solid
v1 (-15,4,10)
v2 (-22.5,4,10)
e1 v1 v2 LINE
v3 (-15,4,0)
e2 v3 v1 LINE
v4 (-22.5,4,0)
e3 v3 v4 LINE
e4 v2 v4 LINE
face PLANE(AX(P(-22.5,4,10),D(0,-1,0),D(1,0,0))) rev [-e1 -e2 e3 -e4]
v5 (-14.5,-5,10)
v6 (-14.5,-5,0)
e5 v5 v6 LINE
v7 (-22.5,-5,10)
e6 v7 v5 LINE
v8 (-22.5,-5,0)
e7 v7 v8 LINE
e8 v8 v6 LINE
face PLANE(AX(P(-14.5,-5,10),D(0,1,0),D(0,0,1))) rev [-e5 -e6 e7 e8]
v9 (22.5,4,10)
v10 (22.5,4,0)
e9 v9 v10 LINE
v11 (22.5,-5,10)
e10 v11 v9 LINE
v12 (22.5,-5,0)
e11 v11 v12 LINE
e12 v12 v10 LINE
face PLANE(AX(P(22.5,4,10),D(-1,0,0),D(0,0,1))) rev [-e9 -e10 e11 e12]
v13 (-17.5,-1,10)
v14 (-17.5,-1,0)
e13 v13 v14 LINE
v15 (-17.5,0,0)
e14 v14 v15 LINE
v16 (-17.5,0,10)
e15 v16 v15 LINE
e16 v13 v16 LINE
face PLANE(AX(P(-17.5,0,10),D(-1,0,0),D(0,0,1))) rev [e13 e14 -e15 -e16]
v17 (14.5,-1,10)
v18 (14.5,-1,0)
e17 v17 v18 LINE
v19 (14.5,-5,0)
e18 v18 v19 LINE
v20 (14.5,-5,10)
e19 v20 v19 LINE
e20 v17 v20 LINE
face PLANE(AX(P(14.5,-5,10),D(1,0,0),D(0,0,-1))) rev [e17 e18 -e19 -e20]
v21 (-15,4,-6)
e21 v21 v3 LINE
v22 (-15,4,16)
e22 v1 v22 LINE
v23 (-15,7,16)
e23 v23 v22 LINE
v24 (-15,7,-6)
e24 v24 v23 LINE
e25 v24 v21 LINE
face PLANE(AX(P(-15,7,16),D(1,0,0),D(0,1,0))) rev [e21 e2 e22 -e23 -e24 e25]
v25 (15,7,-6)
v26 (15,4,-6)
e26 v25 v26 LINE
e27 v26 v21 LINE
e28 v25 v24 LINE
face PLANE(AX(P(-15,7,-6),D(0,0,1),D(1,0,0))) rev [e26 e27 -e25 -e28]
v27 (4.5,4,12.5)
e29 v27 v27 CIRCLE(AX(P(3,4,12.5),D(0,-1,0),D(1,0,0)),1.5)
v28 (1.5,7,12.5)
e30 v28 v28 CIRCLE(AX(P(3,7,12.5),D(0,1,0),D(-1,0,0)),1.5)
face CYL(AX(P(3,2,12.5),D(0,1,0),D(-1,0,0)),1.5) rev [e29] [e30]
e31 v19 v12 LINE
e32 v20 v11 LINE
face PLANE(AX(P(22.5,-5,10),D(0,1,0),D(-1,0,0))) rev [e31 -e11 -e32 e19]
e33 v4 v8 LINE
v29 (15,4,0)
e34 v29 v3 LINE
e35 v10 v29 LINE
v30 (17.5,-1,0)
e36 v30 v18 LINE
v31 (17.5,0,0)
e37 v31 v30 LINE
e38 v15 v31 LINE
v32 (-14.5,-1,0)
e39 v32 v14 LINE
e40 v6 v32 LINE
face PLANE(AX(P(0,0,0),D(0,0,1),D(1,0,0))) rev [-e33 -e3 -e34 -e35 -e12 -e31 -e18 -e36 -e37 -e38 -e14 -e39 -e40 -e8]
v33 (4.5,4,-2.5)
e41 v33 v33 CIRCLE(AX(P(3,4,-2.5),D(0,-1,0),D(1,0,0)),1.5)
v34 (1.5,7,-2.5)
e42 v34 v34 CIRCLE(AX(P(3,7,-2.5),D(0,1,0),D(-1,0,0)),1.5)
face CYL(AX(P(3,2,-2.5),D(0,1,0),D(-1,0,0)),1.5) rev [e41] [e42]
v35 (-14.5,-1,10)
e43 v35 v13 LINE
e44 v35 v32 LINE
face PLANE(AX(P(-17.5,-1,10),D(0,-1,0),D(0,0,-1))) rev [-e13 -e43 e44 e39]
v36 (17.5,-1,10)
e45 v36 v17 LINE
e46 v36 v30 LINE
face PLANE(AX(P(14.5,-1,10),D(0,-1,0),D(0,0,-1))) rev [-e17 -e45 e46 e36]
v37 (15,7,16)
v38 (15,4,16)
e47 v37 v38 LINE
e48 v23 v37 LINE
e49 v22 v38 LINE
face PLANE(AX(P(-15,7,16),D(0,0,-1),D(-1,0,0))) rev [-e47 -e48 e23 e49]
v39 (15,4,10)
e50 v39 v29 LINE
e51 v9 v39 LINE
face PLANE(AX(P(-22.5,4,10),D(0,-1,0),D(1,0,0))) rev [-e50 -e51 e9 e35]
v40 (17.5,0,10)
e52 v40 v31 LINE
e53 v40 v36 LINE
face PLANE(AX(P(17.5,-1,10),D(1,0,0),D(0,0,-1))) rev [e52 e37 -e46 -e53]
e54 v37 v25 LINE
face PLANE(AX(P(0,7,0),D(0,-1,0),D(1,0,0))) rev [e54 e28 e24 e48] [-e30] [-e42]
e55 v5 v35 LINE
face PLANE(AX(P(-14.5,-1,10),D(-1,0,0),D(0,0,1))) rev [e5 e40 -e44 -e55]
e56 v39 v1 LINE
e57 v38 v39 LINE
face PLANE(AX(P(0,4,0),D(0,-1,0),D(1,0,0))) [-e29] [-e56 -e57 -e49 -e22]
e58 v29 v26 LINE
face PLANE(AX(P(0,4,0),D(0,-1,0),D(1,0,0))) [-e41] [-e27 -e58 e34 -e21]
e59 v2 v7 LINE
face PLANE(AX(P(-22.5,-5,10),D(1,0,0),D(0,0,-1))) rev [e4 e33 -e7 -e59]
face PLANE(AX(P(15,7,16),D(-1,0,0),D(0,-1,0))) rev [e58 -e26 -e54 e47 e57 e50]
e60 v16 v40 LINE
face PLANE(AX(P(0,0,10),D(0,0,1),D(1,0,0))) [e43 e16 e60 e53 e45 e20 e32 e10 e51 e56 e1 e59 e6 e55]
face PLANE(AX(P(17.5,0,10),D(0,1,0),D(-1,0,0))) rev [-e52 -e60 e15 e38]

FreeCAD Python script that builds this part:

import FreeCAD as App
import Part
import Sketcher

V = App.Vector
Q = App.Units.Quantity

doc = App.newDocument("Part")
body = doc.addObject("PartDesign::Body", "Body")

# Sketch on XY plane
sketch1 = doc.addObject("Sketcher::SketchObject", "Sketch")
body.addObject(sketch1)
sketch1.AttachmentSupport = (doc.XY_Plane, [""])
sketch1.MapMode = "FlatFace"
sketch1.addGeometry([
    Part.LineSegment(V(-17.5, -1, 0), V(-17.5, 0, 0)),  # 0
    Part.LineSegment(V(-17.5, 0, 0), V(17.5, 0, 0)),  # 1
    Part.LineSegment(V(17.5, 0, 0), V(17.5, -1, 0)),  # 2
    Part.LineSegment(V(17.5, -1, 0), V(14.5, -1, 0)),  # 3
    Part.LineSegment(V(14.5, -1, 0), V(14.5, -5, 0)),  # 4
    Part.LineSegment(V(14.5, -5, 0), V(22.5, -5, 0)),  # 5
    Part.LineSegment(V(22.5, -5, 0), V(22.5, 4, 0)),  # 6
    Part.LineSegment(V(22.5, 4, 0), V(-22.5, 4, 0)),  # 7
    Part.LineSegment(V(-22.5, 4, 0), V(-22.5, -5, 0)),  # 8
    Part.LineSegment(V(-22.5, -5, 0), V(-14.5, -5, 0)),  # 9
    Part.LineSegment(V(-14.5, -5, 0), V(-14.5, -1, 0)),  # 10
    Part.LineSegment(V(-14.5, -1, 0), V(-17.5, -1, 0)),  # 11
], False)
sketch1.addConstraint([
    Sketcher.Constraint("Coincident", 0, 2, 1, 1),
    Sketcher.Constraint("Coincident", 1, 2, 2, 1),
    Sketcher.Constraint("Coincident", 2, 2, 3, 1),
    Sketcher.Constraint("Coincident", 3, 2, 4, 1),
    Sketcher.Constraint("Coincident", 4, 2, 5, 1),
    Sketcher.Constraint("Coincident", 5, 2, 6, 1),
    Sketcher.Constraint("Coincident", 6, 2, 7, 1),
    Sketcher.Constraint("Coincident", 7, 2, 8, 1),
    Sketcher.Constraint("Coincident", 8, 2, 9, 1),
    Sketcher.Constraint("Coincident", 9, 2, 10, 1),
    Sketcher.Constraint("Coincident", 10, 2, 11, 1),
    Sketcher.Constraint("Coincident", 11, 2, 0, 1),
    Sketcher.Constraint("Vertical", 0),
    Sketcher.Constraint("Horizontal", 1),
    Sketcher.Constraint("Vertical", 2),
    Sketcher.Constraint("Horizontal", 3),
    Sketcher.Constraint("Vertical", 4),
    Sketcher.Constraint("Horizontal", 5),
    Sketcher.Constraint("Vertical", 6),
    Sketcher.Constraint("Horizontal", 7),
    Sketcher.Constraint("Vertical", 8),
    Sketcher.Constraint("Horizontal", 9),
    Sketcher.Constraint("Vertical", 10),
    Sketcher.Constraint("Horizontal", 11),
    Sketcher.Constraint("Symmetric", 0, 2, 1, 2, -1, 1),
    Sketcher.Constraint("Symmetric", 5, 2, 8, 2, -2),
    Sketcher.Constraint("Symmetric", 3, 2, 10, 2, -2),
    Sketcher.Constraint("DistanceX", 1, 1, 1, 2, Q("35 mm")),
    Sketcher.Constraint("DistanceX", 3, 2, 3, 1, Q("3 mm")),
    Sketcher.Constraint("DistanceX", 5, 1, 5, 2, Q("8 mm")),
    Sketcher.Constraint("DistanceY", 0, 1, 0, 2, Q("1 mm")),
    Sketcher.Constraint("DistanceY", 4, 2, 4, 1, Q("4 mm")),
    Sketcher.Constraint("DistanceY", 6, 1, 6, 2, Q("9 mm")),
])
pad1 = doc.addObject("PartDesign::Pad", "Pad")
body.addObject(pad1)
pad1.Profile = sketch1
pad1.Length = 10

# Sketch on XZ plane
sketch2 = doc.addObject("Sketcher::SketchObject", "Sketch001")
body.addObject(sketch2)
sketch2.AttachmentSupport = (doc.XZ_Plane, [""])
sketch2.MapMode = "FlatFace"
sketch2.AttachmentOffset = App.Placement(V(0, 0, -4), App.Rotation())
sketch2.addGeometry([
    Part.LineSegment(V(-15, -6, 0), V(-15, 16, 0)),
    Part.LineSegment(V(-15, 16, 0), V(15, 16, 0)),
    Part.LineSegment(V(15, 16, 0), V(15, -6, 0)),
    Part.LineSegment(V(15, -6, 0), V(-15, -6, 0)),
], False)
sketch2.addConstraint([
    Sketcher.Constraint("Coincident", 0, 2, 1, 1),
    Sketcher.Constraint("Coincident", 1, 2, 2, 1),
    Sketcher.Constraint("Coincident", 2, 2, 3, 1),
    Sketcher.Constraint("Coincident", 3, 2, 0, 1),
    Sketcher.Constraint("Vertical", 0),
    Sketcher.Constraint("Horizontal", 1),
    Sketcher.Constraint("Vertical", 2),
    Sketcher.Constraint("Horizontal", 3),
    Sketcher.Constraint("DistanceX", 1, 1, 1, 2, Q("30 mm")),
    Sketcher.Constraint("DistanceY", 0, 1, 0, 2, Q("22 mm")),
    Sketcher.Constraint("DistanceX", 0, 2, -1, 1, Q("15 mm")),
    Sketcher.Constraint("DistanceY", -1, 1, 0, 2, Q("16 mm")),
])
pad2 = doc.addObject("PartDesign::Pad", "Pad001")
body.addObject(pad2)
pad2.Profile = sketch2
pad2.Length = 3
pad2.Reversed = True

# Sketch on XZ plane
sketch3 = doc.addObject("Sketcher::SketchObject", "Sketch002")
body.addObject(sketch3)
sketch3.AttachmentSupport = (doc.XZ_Plane, [""])
sketch3.MapMode = "FlatFace"
sketch3.AttachmentOffset = App.Placement(V(0, 0, -7), App.Rotation())
sketch3.addGeometry([
    Part.Circle(V(3, -2.5, 0), V(0, 0, 1), 1.5),
    Part.Circle(V(3, 12.5, 0), V(0, 0, 1), 1.5),
], False)
sketch3.addConstraint([
    Sketcher.Constraint("Equal", 0, 1),
    Sketcher.Constraint("Vertical", 0, 3, 1, 3),
    Sketcher.Constraint("Diameter", 0, Q("3 mm")),
    Sketcher.Constraint("DistanceX", -1, 1, 0, 3, Q("3 mm")),
    Sketcher.Constraint("DistanceY", 0, 3, 1, 3, Q("15 mm")),
    Sketcher.Constraint("DistanceY", 0, 3, -1, 1, Q("2.5 mm")),
])
pocket1 = doc.addObject("PartDesign::Pocket", "Pocket")
body.addObject(pocket1)
pocket1.Profile = sketch3
pocket1.Length = 5
pocket1.Reversed = True

doc.recompute()
